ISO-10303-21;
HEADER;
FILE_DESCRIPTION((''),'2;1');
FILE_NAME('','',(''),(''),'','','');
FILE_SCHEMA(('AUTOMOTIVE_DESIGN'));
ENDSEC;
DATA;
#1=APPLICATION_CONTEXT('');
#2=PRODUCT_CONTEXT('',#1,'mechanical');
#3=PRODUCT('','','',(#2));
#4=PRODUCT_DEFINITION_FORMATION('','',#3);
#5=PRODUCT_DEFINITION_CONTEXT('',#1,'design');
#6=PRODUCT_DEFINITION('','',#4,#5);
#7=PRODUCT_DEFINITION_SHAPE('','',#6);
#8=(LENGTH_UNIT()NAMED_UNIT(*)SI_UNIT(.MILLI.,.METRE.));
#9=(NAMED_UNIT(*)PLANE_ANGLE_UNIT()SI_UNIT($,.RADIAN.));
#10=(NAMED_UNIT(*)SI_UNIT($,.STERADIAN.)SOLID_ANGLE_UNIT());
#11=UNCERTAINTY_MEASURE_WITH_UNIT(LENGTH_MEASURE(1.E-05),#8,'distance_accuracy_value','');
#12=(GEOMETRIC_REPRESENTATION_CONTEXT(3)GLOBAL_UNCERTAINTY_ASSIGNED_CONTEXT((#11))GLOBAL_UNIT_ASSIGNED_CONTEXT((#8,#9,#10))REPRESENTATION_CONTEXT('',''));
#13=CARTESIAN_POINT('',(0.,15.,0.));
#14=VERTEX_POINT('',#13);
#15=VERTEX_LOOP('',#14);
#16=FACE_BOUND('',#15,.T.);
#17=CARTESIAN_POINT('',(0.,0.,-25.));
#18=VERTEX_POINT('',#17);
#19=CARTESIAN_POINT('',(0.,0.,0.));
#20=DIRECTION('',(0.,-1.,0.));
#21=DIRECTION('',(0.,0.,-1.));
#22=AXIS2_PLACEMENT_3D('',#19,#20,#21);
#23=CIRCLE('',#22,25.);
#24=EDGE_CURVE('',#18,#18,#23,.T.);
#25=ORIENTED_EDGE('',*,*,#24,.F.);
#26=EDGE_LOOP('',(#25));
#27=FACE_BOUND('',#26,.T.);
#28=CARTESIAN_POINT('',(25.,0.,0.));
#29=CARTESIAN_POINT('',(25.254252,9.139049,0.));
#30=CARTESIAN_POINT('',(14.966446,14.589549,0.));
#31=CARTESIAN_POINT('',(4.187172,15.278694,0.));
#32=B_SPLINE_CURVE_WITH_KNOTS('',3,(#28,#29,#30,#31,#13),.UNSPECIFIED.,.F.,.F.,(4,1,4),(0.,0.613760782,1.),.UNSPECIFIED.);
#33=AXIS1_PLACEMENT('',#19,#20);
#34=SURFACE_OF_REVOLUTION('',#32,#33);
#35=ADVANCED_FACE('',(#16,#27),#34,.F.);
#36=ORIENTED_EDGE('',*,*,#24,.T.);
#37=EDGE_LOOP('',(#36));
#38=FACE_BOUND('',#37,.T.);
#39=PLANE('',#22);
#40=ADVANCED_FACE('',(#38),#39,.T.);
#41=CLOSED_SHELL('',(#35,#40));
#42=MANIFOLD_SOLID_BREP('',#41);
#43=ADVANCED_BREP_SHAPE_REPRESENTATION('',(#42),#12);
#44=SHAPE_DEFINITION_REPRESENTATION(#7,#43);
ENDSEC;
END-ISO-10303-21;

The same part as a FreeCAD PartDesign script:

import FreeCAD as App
import Part
import Sketcher
from FreeCAD import Vector

doc = App.newDocument("Part")
body = doc.addObject("PartDesign::Body", "Body")

sketch1 = doc.addObject("Sketcher::SketchObject", "Sketch")
body.addObject(sketch1)
sketch1.AttachmentSupport = (doc.XY_Plane, [""])
sketch1.MapMode = "FlatFace"
sketch1.addGeometry([
    Part.LineSegment(Vector(0, 15, 0), Vector(0, 0, 0)),
    Part.LineSegment(Vector(0, 0, 0), Vector(25, 0, 0)),
    Part.BSplineCurve([Vector(0, 15, 0), Vector(4.187172, 15.278694, 0), Vector(14.966446, 14.589549, 0), Vector(25.254252, 9.139049, 0), Vector(25, 0, 0)], [4, 1, 4], [0, 0.386239218, 1], False, 3, [1, 1, 1, 1, 1], False),
], False)
sketch1.addConstraint([
    Sketcher.Constraint("Block", 2),
    Sketcher.Constraint("Coincident", 0, 2, 1, 1),
    Sketcher.Constraint("Coincident", 1, 2, 2, 2),
    Sketcher.Constraint("Coincident", 2, 1, 0, 1),
    Sketcher.Constraint("Vertical", 0),
    Sketcher.Constraint("Horizontal", 1),
])
revolution = doc.addObject("PartDesign::Revolution", "Revolution")
body.addObject(revolution)
revolution.Profile = sketch1
revolution.ReferenceAxis = (sketch1, ["V_Axis"])
revolution.Angle = 360

doc.recompute()
